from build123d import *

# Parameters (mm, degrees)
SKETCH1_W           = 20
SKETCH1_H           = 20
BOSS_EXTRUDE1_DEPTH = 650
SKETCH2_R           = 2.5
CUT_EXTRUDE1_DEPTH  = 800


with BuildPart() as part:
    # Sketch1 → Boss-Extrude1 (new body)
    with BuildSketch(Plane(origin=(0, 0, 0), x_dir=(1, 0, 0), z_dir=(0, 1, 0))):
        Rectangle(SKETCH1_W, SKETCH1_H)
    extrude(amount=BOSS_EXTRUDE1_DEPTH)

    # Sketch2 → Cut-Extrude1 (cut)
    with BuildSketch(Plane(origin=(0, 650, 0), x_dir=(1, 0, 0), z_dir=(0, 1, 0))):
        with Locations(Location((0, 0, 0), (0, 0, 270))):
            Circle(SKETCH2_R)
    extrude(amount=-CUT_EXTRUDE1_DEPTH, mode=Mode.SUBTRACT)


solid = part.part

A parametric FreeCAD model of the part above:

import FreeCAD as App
import Part
import Sketcher

V = App.Vector
Q = App.Units.Quantity

doc = App.newDocument("Part")
params = doc.addObject("Spreadsheet::Sheet", "Params")
for row, (alias, value) in enumerate([
    ("sketch1_width", "20 mm"),
    ("pad1_length", "650 mm"),
    ("sketch2_diameter", "5 mm"),
    ("pocket1_length", "800 mm"),
], start=1):
    params.set(f"A{row}", alias)
    params.set(f"B{row}", "=" + value)
    params.setAlias(f"B{row}", alias)

body = doc.addObject("PartDesign::Body", "Body")

# Sketch on XZ plane
sketch1 = body.newObject("Sketcher::SketchObject", "Sketch")
sketch1.AttachmentSupport = (doc.getObject("XZ_Plane"), [""])
sketch1.MapMode = "FlatFace"
sketch1.addGeometry([
    Part.LineSegment(V(-10, -10, 0), V(-10, 10, 0)),
    Part.LineSegment(V(-10, 10, 0), V(10, 10, 0)),
    Part.LineSegment(V(10, 10, 0), V(10, -10, 0)),
    Part.LineSegment(V(10, -10, 0), V(-10, -10, 0)),
], False)
sketch1.addConstraint([
    Sketcher.Constraint("Coincident", 0, 2, 1, 1),
    Sketcher.Constraint("Coincident", 1, 2, 2, 1),
    Sketcher.Constraint("Coincident", 2, 2, 3, 1),
    Sketcher.Constraint("Coincident", 3, 2, 0, 1),
    Sketcher.Constraint("Vertical", 0),
    Sketcher.Constraint("Horizontal", 1),
    Sketcher.Constraint("Vertical", 2),
    Sketcher.Constraint("Horizontal", 3),
    Sketcher.Constraint("Symmetric", 0, 2, 2, 2, -1, 1),
    Sketcher.Constraint("Equal", 3, 0),
    Sketcher.Constraint("DistanceX", 1, 1, 1, 2, Q("20 mm")),
])
sketch1.setExpression("Constraints[10]", "Params.sketch1_width")
pad1 = body.newObject("PartDesign::Pad", "Pad")
pad1.Profile = sketch1
pad1.setExpression("Length", "Params.pad1_length")
pad1.Reversed = True

# Sketch on XZ plane
sketch2 = body.newObject("Sketcher::SketchObject", "Sketch001")
sketch2.AttachmentSupport = (doc.getObject("XZ_Plane"), [""])
sketch2.MapMode = "FlatFace"
sketch2.AttachmentOffset = App.Placement(V(0, 0, -650), App.Rotation())
sketch2.addGeometry(Part.Circle(V(0, 0, 0), V(0, 0, 1), 2.5), False)
sketch2.addConstraint([
    Sketcher.Constraint("Coincident", 0, 3, -1, 1),
    Sketcher.Constraint("Diameter", 0, Q("5 mm")),
])
sketch2.setExpression("Constraints[1]", "Params.sketch2_diameter")
pocket1 = body.newObject("PartDesign::Pocket", "Pocket")
pocket1.Profile = sketch2
pocket1.setExpression("Length", "Params.pocket1_length")
pocket1.Reversed = True

doc.recompute()
